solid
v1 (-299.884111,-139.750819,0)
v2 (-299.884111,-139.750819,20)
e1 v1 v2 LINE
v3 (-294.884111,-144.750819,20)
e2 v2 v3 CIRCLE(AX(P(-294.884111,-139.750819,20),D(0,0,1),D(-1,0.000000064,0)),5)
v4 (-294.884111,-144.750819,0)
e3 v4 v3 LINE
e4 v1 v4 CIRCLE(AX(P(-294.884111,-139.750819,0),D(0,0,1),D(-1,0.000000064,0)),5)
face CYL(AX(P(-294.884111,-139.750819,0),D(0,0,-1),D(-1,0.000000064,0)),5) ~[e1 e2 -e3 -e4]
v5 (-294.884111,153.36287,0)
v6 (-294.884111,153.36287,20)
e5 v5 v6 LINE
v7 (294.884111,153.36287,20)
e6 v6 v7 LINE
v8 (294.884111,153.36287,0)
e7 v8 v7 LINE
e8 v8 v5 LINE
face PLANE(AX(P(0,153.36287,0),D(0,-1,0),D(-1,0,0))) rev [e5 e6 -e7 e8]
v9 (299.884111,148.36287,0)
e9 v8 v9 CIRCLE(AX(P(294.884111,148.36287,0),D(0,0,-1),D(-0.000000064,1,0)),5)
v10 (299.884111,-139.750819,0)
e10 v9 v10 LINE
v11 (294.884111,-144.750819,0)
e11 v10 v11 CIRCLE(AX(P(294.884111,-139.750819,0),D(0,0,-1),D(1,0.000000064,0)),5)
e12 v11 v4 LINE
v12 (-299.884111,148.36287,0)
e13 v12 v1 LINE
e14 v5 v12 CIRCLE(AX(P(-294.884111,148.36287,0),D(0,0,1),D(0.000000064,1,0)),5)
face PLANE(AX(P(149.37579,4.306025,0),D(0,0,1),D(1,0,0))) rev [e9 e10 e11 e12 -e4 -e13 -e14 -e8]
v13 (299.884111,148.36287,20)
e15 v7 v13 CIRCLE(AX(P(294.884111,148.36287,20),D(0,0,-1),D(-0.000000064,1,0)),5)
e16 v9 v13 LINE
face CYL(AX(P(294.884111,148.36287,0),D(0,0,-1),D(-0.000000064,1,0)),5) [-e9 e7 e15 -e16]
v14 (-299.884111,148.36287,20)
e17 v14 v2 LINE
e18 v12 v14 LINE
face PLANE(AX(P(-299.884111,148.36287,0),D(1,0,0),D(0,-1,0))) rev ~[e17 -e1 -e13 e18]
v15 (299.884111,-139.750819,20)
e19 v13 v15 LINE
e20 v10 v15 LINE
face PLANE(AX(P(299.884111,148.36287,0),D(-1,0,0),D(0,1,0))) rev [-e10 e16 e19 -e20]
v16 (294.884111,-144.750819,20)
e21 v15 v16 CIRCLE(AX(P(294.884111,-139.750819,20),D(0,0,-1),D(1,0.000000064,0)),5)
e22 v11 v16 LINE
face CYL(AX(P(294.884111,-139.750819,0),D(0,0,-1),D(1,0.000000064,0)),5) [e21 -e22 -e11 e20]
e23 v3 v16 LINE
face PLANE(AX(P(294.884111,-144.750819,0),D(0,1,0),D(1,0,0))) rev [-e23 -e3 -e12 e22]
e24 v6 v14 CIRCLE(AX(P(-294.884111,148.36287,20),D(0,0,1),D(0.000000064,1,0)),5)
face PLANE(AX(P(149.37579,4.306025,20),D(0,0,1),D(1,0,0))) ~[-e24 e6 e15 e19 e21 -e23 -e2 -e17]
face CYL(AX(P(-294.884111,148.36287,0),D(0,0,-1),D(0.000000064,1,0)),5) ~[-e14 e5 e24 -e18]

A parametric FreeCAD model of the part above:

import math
import FreeCAD as App
import Part
import Sketcher
Q = App.Units.Quantity

doc = App.newDocument("Part")
params = doc.addObject("Spreadsheet::Sheet", "Params")
for row, (alias, value) in enumerate([
    ("sketch1_radius", "5 mm"),
    ("pad1_length", "20 mm"),
], start=1):
    params.set(f"A{row}", alias)
    params.set(f"B{row}", "=" + value)
    params.setAlias(f"B{row}", alias)

body = doc.addObject("PartDesign::Body", "Body")

# Sketch on XY plane
sketch1 = body.newObject("Sketcher::SketchObject", "Sketch")
sketch1.AttachmentSupport = (doc.getObject("XY_Plane"), [""])
sketch1.MapMode = "FlatFace"
sketch1.addGeometry([
    Part.LineSegment(App.Vector(0, -144.750819, 0), App.Vector(0, 153.36287, 0)),  # 0
    Part.LineSegment(App.Vector(0, 153.36287, 0), App.Vector(-294.884111, 153.36287, 0)),  # 1
    Part.ArcOfCircle(Part.Circle(App.Vector(-294.884111, 148.36287, 0), App.Vector(0, 0, 1), 5), math.radians(89.999996), math.radians(180.000004)),  # 2
    Part.LineSegment(App.Vector(-299.884111, 148.36287, 0), App.Vector(-299.884111, -139.750819, 0)),  # 3
    Part.ArcOfCircle(Part.Circle(App.Vector(-294.884111, -139.750819, 0), App.Vector(0, 0, 1), 5), math.radians(179.999996), math.radians(270.000004)),  # 4
    Part.LineSegment(App.Vector(-294.884111, -144.750819, 0), App.Vector(0, -144.750819, 0)),  # 5
], False)
sketch1.addConstraint([
    Sketcher.Constraint("Coincident", 0, 2, 1, 1),
    Sketcher.Constraint("Tangent", 1, 2, 2, 1),
    Sketcher.Constraint("Tangent", 2, 2, 3, 1),
    Sketcher.Constraint("Tangent", 3, 2, 4, 1),
    Sketcher.Constraint("Tangent", 4, 2, 5, 1),
    Sketcher.Constraint("Coincident", 5, 2, 0, 1),
    Sketcher.Constraint("Vertical", 0),
    Sketcher.Constraint("Horizontal", 1),
    Sketcher.Constraint("Vertical", 3),
    Sketcher.Constraint("Horizontal", 5),
    Sketcher.Constraint("Equal", 2, 4),
    Sketcher.Constraint("PointOnObject", 0, 2, -2),
    Sketcher.Constraint("Radius", 2, Q("5 mm")),
    Sketcher.Constraint("DistanceX", 1, 2, 1, 1, Q("294.884111 mm")),
    Sketcher.Constraint("DistanceY", 0, 1, 0, 2, Q("298.113689 mm")),
    Sketcher.Constraint("DistanceY", -1, 1, 2, 3, Q("148.36287 mm")),
])
sketch1.setExpression("Constraints[12]", "Params.sketch1_radius")
pad1 = body.newObject("PartDesign::Pad", "Pad")
pad1.Profile = sketch1
pad1.setExpression("Length", "Params.pad1_length")
body2 = doc.addObject("PartDesign::Body", "Body001")
doc.recompute()

body2.BaseFeature = body
doc.recompute()

mirroring = doc.addObject("Part::Mirroring", "Mirroring")
mirroring.Source = body
mirroring.Base = App.Vector(0, 4.306026, 10)
mirroring.Normal = App.Vector(1, 0, 0)
body3 = doc.addObject("PartDesign::Body", "Body002")
body3.BaseFeature = mirroring
boolean = body2.newObject("PartDesign::Boolean", "Boolean")
boolean.Type = "Fuse"
boolean.addObjects([body3])
doc.recompute()
mirroring.Visibility = False

doc.recompute()
